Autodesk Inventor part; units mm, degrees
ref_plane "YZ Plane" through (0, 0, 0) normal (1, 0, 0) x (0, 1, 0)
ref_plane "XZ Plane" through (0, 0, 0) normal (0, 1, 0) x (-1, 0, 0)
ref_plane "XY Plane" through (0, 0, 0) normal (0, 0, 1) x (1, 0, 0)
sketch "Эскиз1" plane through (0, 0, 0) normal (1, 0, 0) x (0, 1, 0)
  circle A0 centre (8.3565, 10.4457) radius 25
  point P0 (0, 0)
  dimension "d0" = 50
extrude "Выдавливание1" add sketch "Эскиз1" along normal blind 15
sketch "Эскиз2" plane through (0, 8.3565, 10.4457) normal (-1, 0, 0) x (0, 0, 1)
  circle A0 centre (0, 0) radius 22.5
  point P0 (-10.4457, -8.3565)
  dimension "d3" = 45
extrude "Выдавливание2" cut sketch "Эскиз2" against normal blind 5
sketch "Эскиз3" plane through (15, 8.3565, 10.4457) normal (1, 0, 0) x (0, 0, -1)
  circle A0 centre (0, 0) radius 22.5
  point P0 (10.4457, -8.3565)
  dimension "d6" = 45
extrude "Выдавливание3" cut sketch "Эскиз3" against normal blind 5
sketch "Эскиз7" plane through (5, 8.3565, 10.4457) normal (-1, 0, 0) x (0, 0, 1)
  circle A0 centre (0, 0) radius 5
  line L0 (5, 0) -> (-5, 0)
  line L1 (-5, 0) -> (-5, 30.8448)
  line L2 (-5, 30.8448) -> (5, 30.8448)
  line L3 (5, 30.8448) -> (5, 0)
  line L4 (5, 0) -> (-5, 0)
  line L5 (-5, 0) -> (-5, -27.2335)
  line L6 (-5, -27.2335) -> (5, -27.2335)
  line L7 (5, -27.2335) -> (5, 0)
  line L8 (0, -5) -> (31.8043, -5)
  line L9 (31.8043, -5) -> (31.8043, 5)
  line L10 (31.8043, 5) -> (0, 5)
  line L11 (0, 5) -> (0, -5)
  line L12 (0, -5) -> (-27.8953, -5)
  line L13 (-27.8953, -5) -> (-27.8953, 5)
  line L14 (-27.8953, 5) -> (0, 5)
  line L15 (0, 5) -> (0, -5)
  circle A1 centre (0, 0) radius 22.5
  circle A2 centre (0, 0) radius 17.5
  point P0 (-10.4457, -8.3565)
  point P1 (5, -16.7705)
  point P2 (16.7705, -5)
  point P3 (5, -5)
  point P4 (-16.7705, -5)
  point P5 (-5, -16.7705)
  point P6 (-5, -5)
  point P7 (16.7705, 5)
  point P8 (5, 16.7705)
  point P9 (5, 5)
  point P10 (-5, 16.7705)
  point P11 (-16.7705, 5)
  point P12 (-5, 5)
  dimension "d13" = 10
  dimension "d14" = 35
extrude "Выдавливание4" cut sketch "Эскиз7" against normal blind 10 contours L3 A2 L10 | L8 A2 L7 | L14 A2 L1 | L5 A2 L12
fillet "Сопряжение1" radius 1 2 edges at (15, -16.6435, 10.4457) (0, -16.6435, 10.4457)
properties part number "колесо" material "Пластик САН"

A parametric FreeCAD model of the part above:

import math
import FreeCAD as App
import Part
import Sketcher
from FreeCAD import Vector


def edges_at(feature, points):
    """Names of the edges that pass closest to the given points."""
    edges = feature.Shape.Edges
    near = lambda p: min(range(len(edges)), key=lambda i: edges[i].distToShape(Part.Vertex(*p))[0])
    return sorted({f"Edge{near(p) + 1}" for p in points})

doc = App.newDocument("Part")
body = doc.addObject("PartDesign::Body", "Body")

sketch1 = body.newObject("Sketcher::SketchObject", "Sketch")
sketch1.AttachmentSupport = (doc.getObject("YZ_Plane"), [""])
sketch1.MapMode = "FlatFace"
sketch1.addGeometry(Part.Circle(Vector(8.3565, 10.4457, 0), Vector(0, 0, 1), 25), False)
sketch1.addConstraint([
    Sketcher.Constraint("Diameter", 0, 50.0),
    Sketcher.Constraint("DistanceX", -1, 1, 0, 3, 8.3565),
    Sketcher.Constraint("DistanceY", -1, 1, 0, 3, 10.4457),
])
pad1 = body.newObject("PartDesign::Pad", "Pad")
pad1.Profile = sketch1
pad1.Length = 15

sketch2 = body.newObject("Sketcher::SketchObject", "Sketch001")
sketch2.AttachmentSupport = (doc.getObject("YZ_Plane"), [""])
sketch2.MapMode = "FlatFace"
sketch2.addGeometry(Part.Circle(Vector(8.3565, 10.4457, 0), Vector(0, 0, 1), 22.5), False)
sketch2.addConstraint([
    Sketcher.Constraint("Diameter", 0, 45.0),
    Sketcher.Constraint("DistanceX", -1, 1, 0, 3, 8.3565),
    Sketcher.Constraint("DistanceY", -1, 1, 0, 3, 10.4457),
])
pocket1 = body.newObject("PartDesign::Pocket", "Pocket")
pocket1.Profile = sketch2
pocket1.Length = 5
pocket1.Reversed = True

sketch3 = body.newObject("Sketcher::SketchObject", "Sketch002")
sketch3.AttachmentSupport = (doc.getObject("YZ_Plane"), [""])
sketch3.MapMode = "FlatFace"
sketch3.AttachmentOffset = App.Placement(Vector(0, 0, 15), App.Rotation())
sketch3.addGeometry(Part.Circle(Vector(8.3565, 10.4457, 0), Vector(0, 0, 1), 22.5), False)
sketch3.addConstraint([
    Sketcher.Constraint("Diameter", 0, 45.0),
    Sketcher.Constraint("DistanceX", -1, 1, 0, 3, 8.3565),
    Sketcher.Constraint("DistanceY", -1, 1, 0, 3, 10.4457),
])
pocket2 = body.newObject("PartDesign::Pocket", "Pocket001")
pocket2.Profile = sketch3
pocket2.Length = 5

sketch4 = body.newObject("Sketcher::SketchObject", "Sketch003")
sketch4.AttachmentSupport = (doc.getObject("YZ_Plane"), [""])
sketch4.MapMode = "FlatFace"
sketch4.AttachmentOffset = App.Placement(Vector(0, 0, 5), App.Rotation())
sketch4.addGeometry([
    Part.LineSegment(Vector(25.12701, 15.4457, 0), Vector(13.3565, 15.4457, 0)),
    Part.LineSegment(Vector(13.3565, 15.4457, 0), Vector(13.3565, 27.21621, 0)),
    Part.ArcOfCircle(Part.Circle(Vector(8.3565, 10.4457, 0), Vector(0, 0, 1), 17.5), math.radians(16.60155), math.radians(73.39845)),
    Part.LineSegment(Vector(3.3565, 27.21621, 0), Vector(3.3565, 15.4457, 0)),
    Part.LineSegment(Vector(3.3565, 15.4457, 0), Vector(-8.41401, 15.4457, 0)),
    Part.ArcOfCircle(Part.Circle(Vector(8.3565, 10.4457, 0), Vector(0, 0, 1), 17.5), math.radians(106.60155), math.radians(163.39845)),
    Part.LineSegment(Vector(13.3565, -6.32481, 0), Vector(13.3565, 5.4457, 0)),
    Part.LineSegment(Vector(13.3565, 5.4457, 0), Vector(25.12701, 5.4457, 0)),
    Part.ArcOfCircle(Part.Circle(Vector(8.3565, 10.4457, 0), Vector(0, 0, 1), 17.5), math.radians(-73.39845), math.radians(-16.60155)),
    Part.LineSegment(Vector(-8.41401, 5.4457, 0), Vector(3.3565, 5.4457, 0)),
    Part.LineSegment(Vector(3.3565, 5.4457, 0), Vector(3.3565, -6.32481, 0)),
    Part.ArcOfCircle(Part.Circle(Vector(8.3565, 10.4457, 0), Vector(0, 0, 1), 17.5), math.radians(-163.39845), math.radians(-106.60155)),
], False)
sketch4.addConstraint([
    Sketcher.Constraint("Coincident", 0, 2, 1, 1),
    Sketcher.Constraint("Coincident", 1, 2, 2, 2),
    Sketcher.Constraint("Coincident", 2, 1, 0, 1),
    Sketcher.Constraint("Coincident", 3, 2, 4, 1),
    Sketcher.Constraint("Coincident", 4, 2, 5, 2),
    Sketcher.Constraint("Coincident", 5, 1, 3, 1),
    Sketcher.Constraint("Coincident", 6, 2, 7, 1),
    Sketcher.Constraint("Coincident", 7, 2, 8, 2),
    Sketcher.Constraint("Coincident", 8, 1, 6, 1),
    Sketcher.Constraint("Coincident", 9, 2, 10, 1),
    Sketcher.Constraint("Coincident", 10, 2, 11, 2),
    Sketcher.Constraint("Coincident", 11, 1, 9, 1),
    Sketcher.Constraint("Horizontal", 0),
    Sketcher.Constraint("Vertical", 1),
    Sketcher.Constraint("Vertical", 3),
    Sketcher.Constraint("Horizontal", 4),
    Sketcher.Constraint("Vertical", 6),
    Sketcher.Constraint("Horizontal", 7),
    Sketcher.Constraint("Horizontal", 9),
    Sketcher.Constraint("Vertical", 10),
    Sketcher.Constraint("Coincident", 5, 3, 2, 3),
    Sketcher.Constraint("Coincident", 8, 3, 2, 3),
    Sketcher.Constraint("Coincident", 11, 3, 2, 3),
    Sketcher.Constraint("Equal", 2, 5),
    Sketcher.Constraint("Equal", 5, 8),
    Sketcher.Constraint("Equal", 8, 11),
    Sketcher.Constraint("Horizontal", 2, 1, 3, 2),
    Sketcher.Constraint("Horizontal", 1, 2, 5, 1),
    Sketcher.Constraint("Horizontal", 7, 2, 9, 2),
    Sketcher.Constraint("Horizontal", 8, 1, 10, 2),
    Sketcher.Constraint("Vertical", 1, 2, 6, 2),
    Sketcher.Constraint("Vertical", 2, 1, 7, 2),
    Sketcher.Constraint("Equal", 9, 1),
    Sketcher.Constraint("Radius", 2, 17.5),
    Sketcher.Constraint("DistanceX", 3, 2, 0, 2, 10.0),
    Sketcher.Constraint("DistanceX", -1, 1, 2, 1, 25.127),
    Sketcher.Constraint("DistanceY", -1, 1, 2, 3, 10.4457),
])
pocket3 = body.newObject("PartDesign::Pocket", "Pocket002")
pocket3.Profile = sketch4
pocket3.Length = 10
pocket3.Reversed = True
doc.recompute()

fillet = body.newObject("PartDesign::Fillet", "Fillet")
fillet.Base = (pocket3, edges_at(pocket3, [(15, -16.643, 10.446), (0, -16.643, 10.446)]))
fillet.Radius = 1

doc.recompute()
